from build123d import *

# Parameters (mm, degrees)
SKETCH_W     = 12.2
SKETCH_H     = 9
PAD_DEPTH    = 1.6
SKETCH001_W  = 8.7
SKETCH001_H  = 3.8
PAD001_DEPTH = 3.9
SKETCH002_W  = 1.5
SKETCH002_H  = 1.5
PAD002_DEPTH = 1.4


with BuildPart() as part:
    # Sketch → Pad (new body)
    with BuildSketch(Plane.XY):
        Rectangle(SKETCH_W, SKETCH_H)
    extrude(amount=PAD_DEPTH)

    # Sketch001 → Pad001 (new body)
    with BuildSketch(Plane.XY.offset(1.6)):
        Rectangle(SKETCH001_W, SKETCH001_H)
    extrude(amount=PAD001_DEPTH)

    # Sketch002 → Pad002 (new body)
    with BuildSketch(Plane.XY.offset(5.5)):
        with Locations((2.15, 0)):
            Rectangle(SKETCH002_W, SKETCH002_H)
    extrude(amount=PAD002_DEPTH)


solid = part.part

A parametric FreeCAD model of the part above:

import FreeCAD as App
import Part
import Sketcher

V = App.Vector
Q = App.Units.Quantity


def add_polygon(sketch, points):
    """Adds a closed chain of lines whose ends are joined by coincident constraints."""
    first, n = sketch.GeometryCount, len(points)
    for a, b in zip(points, points[1:] + points[:1]):
        sketch.addGeometry(Part.LineSegment(App.Vector(*a, 0), App.Vector(*b, 0)), False)
    for i in range(n):
        sketch.addConstraint(Sketcher.Constraint("Coincident", first + i, 2, first + (i + 1) % n, 1))

doc = App.newDocument("Part")
params = doc.addObject("Spreadsheet::Sheet", "Params")
for row, (alias, value) in enumerate([
    ("sketch1_height", "9 mm"),
    ("sketch1_width", "12.2 mm"),
    ("pad1_length", "1.6 mm"),
    ("sketch2_width", "8.7 mm"),
    ("sketch2_height", "3.8 mm"),
    ("pad2_length", "3.9 mm"),
    ("sketch3_width", "1.5 mm"),
    ("pad3_length", "1.4 mm"),
], start=1):
    params.set(f"A{row}", alias)
    params.set(f"B{row}", "=" + value)
    params.setAlias(f"B{row}", alias)

body = doc.addObject("PartDesign::Body", "Body")

# Sketch on XY plane
sketch1 = body.newObject("Sketcher::SketchObject", "Sketch")
sketch1.AttachmentSupport = (doc.getObject("XY_Plane"), [""])
sketch1.MapMode = "FlatFace"
add_polygon(sketch1, [(-6, 4), (-6, -4), (6, -4), (6, 4)])  # lines 0-3
sketch1.addConstraint(Sketcher.Constraint("Vertical", 0))
sketch1.addConstraint(Sketcher.Constraint("Horizontal", 1))
sketch1.addConstraint(Sketcher.Constraint("Vertical", 2))
sketch1.addConstraint(Sketcher.Constraint("Horizontal", 3))
sketch1.addConstraint(Sketcher.Constraint("Symmetric", 0, 2, 2, 2, -1, 1))
sketch1.addConstraint(Sketcher.Constraint("DistanceY", 0, 2, 0, 1, Q("9 mm")))
sketch1.addConstraint(Sketcher.Constraint("DistanceX", 1, 1, 1, 2, Q("12.2 mm")))
sketch1.setExpression("Constraints[9]", "Params.sketch1_height")
sketch1.setExpression("Constraints[10]", "Params.sketch1_width")
pad1 = body.newObject("PartDesign::Pad", "Pad")
pad1.Profile = sketch1
pad1.setExpression("Length", "Params.pad1_length")

# Sketch on XY plane
sketch2 = body.newObject("Sketcher::SketchObject", "Sketch001")
sketch2.AttachmentSupport = (doc.getObject("XY_Plane"), [""])
sketch2.MapMode = "FlatFace"
sketch2.AttachmentOffset = App.Placement(V(0, 0, 1.6), App.Rotation())
add_polygon(sketch2, [(-4.3, 1.9), (-4.3, -1.9), (4.3, -1.9), (4.3, 1.9)])  # lines 0-3
sketch2.addConstraint(Sketcher.Constraint("Vertical", 0))
sketch2.addConstraint(Sketcher.Constraint("Horizontal", 1))
sketch2.addConstraint(Sketcher.Constraint("Vertical", 2))
sketch2.addConstraint(Sketcher.Constraint("Horizontal", 3))
sketch2.addConstraint(Sketcher.Constraint("Symmetric", 0, 2, 2, 2, -1, 1))
sketch2.addConstraint(Sketcher.Constraint("DistanceX", 1, 1, 1, 2, Q("8.7 mm")))
sketch2.addConstraint(Sketcher.Constraint("DistanceY", 0, 2, 0, 1, Q("3.8 mm")))
sketch2.setExpression("Constraints[9]", "Params.sketch2_width")
sketch2.setExpression("Constraints[10]", "Params.sketch2_height")
pad2 = body.newObject("PartDesign::Pad", "Pad001")
pad2.Profile = sketch2
pad2.setExpression("Length", "Params.pad2_length")

# Sketch on XY plane
sketch3 = body.newObject("Sketcher::SketchObject", "Sketch002")
sketch3.AttachmentSupport = (doc.getObject("XY_Plane"), [""])
sketch3.MapMode = "FlatFace"
sketch3.AttachmentOffset = App.Placement(V(0, 0, 5.5), App.Rotation())
add_polygon(sketch3, [(1.4, 0.8), (1.4, -0.8), (2.9, -0.8), (2.9, 0.8)])  # lines 0-3
sketch3.addConstraint(Sketcher.Constraint("Vertical", 0))
sketch3.addConstraint(Sketcher.Constraint("Horizontal", 1))
sketch3.addConstraint(Sketcher.Constraint("Vertical", 2))
sketch3.addConstraint(Sketcher.Constraint("Horizontal", 3))
sketch3.addConstraint(Sketcher.Constraint("Equal", 3, 0))
sketch3.addConstraint(Sketcher.Constraint("DistanceX", 1, 1, 1, 2, Q("1.5 mm")))
sketch3.addConstraint(Sketcher.Constraint("DistanceX", -1, 1, 0, 2, Q("1.4 mm")))
sketch3.addConstraint(Sketcher.Constraint("DistanceY", 0, 2, -1, 1, Q("0.75 mm")))
sketch3.setExpression("Constraints[9]", "Params.sketch3_width")
pad3 = body.newObject("PartDesign::Pad", "Pad002")
pad3.Profile = sketch3
pad3.setExpression("Length", "Params.pad3_length")

doc.recompute()
